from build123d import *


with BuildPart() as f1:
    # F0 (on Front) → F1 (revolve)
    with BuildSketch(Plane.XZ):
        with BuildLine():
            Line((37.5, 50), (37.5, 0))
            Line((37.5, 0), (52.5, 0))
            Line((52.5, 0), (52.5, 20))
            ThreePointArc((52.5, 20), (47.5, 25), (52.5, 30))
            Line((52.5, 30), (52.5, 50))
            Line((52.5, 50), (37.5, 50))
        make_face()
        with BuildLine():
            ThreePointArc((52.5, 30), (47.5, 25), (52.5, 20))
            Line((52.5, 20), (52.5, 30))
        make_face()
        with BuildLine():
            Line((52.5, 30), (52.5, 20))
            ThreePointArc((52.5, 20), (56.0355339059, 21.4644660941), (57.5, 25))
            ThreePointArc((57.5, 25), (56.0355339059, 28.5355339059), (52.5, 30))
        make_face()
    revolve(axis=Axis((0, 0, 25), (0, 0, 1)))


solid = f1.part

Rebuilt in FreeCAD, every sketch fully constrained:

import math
import FreeCAD as App
import Part
import Sketcher
from FreeCAD import Vector
Q = App.Units.Quantity

doc = App.newDocument("Part")
body = doc.addObject("PartDesign::Body", "Body")

# Sketch on XZ plane
sketch1 = body.newObject("Sketcher::SketchObject", "Sketch")
sketch1.AttachmentSupport = (doc.getObject("XZ_Plane"), [""])
sketch1.MapMode = "FlatFace"
sketch1.addGeometry(Part.LineSegment(Vector(38, 50, 0), Vector(38, 0, 0)), False)
sketch1.addGeometry(Part.LineSegment(Vector(38, 0, 0), Vector(52, 0, 0)), False)
sketch1.addGeometry(Part.LineSegment(Vector(52, 0, 0), Vector(52, 20, 0)), False)
sketch1.addGeometry(Part.ArcOfCircle(Part.Circle(Vector(52, 25, 0), Vector(0, 0, 1), 5), math.radians(-90), math.radians(0)), False)
sketch1.addGeometry(Part.ArcOfCircle(Part.Circle(Vector(52, 25, 0), Vector(0, 0, 1), 5), math.radians(0), math.radians(90)), False)
sketch1.addGeometry(Part.LineSegment(Vector(52, 30, 0), Vector(52, 50, 0)), False)
sketch1.addGeometry(Part.LineSegment(Vector(52, 50, 0), Vector(38, 50, 0)), False)
sketch1.addConstraint(Sketcher.Constraint("Coincident", 0, 2, 1, 1))
sketch1.addConstraint(Sketcher.Constraint("Coincident", 1, 2, 2, 1))
sketch1.addConstraint(Sketcher.Constraint("Coincident", 2, 2, 3, 1))
sketch1.addConstraint(Sketcher.Constraint("Tangent", 3, 2, 4, 1))
sketch1.addConstraint(Sketcher.Constraint("Coincident", 4, 2, 5, 1))
sketch1.addConstraint(Sketcher.Constraint("Coincident", 5, 2, 6, 1))
sketch1.addConstraint(Sketcher.Constraint("Coincident", 6, 2, 0, 1))
sketch1.addConstraint(Sketcher.Constraint("Vertical", 0))
sketch1.addConstraint(Sketcher.Constraint("Horizontal", 1))
sketch1.addConstraint(Sketcher.Constraint("Vertical", 2))
sketch1.addConstraint(Sketcher.Constraint("Vertical", 5))
sketch1.addConstraint(Sketcher.Constraint("Horizontal", 6))
sketch1.addConstraint(Sketcher.Constraint("Equal", 3, 4))
sketch1.addConstraint(Sketcher.Constraint("PointOnObject", 0, 2, -1))
sketch1.addConstraint(Sketcher.Constraint("Horizontal", 4, 3, 3, 2))
sketch1.addConstraint(Sketcher.Constraint("Vertical", 4, 3, 1, 2))
sketch1.addConstraint(Sketcher.Constraint("Vertical", 2, 2, 4, 2))
sketch1.addConstraint(Sketcher.Constraint("Equal", 2, 5))
sketch1.addConstraint(Sketcher.Constraint("Radius", 3, Q("5 mm")))
sketch1.addConstraint(Sketcher.Constraint("DistanceX", 1, 1, 1, 2, Q("15 mm")))
sketch1.addConstraint(Sketcher.Constraint("DistanceY", 0, 2, 0, 1, Q("50 mm")))
sketch1.addConstraint(Sketcher.Constraint("DistanceX", -1, 1, 3, 3, Q("52.5 mm")))
revolution = body.newObject("PartDesign::Revolution", "Revolution")
revolution.Profile = sketch1
revolution.ReferenceAxis = (sketch1, ["V_Axis"])
revolution.Angle = 360

doc.recompute()
